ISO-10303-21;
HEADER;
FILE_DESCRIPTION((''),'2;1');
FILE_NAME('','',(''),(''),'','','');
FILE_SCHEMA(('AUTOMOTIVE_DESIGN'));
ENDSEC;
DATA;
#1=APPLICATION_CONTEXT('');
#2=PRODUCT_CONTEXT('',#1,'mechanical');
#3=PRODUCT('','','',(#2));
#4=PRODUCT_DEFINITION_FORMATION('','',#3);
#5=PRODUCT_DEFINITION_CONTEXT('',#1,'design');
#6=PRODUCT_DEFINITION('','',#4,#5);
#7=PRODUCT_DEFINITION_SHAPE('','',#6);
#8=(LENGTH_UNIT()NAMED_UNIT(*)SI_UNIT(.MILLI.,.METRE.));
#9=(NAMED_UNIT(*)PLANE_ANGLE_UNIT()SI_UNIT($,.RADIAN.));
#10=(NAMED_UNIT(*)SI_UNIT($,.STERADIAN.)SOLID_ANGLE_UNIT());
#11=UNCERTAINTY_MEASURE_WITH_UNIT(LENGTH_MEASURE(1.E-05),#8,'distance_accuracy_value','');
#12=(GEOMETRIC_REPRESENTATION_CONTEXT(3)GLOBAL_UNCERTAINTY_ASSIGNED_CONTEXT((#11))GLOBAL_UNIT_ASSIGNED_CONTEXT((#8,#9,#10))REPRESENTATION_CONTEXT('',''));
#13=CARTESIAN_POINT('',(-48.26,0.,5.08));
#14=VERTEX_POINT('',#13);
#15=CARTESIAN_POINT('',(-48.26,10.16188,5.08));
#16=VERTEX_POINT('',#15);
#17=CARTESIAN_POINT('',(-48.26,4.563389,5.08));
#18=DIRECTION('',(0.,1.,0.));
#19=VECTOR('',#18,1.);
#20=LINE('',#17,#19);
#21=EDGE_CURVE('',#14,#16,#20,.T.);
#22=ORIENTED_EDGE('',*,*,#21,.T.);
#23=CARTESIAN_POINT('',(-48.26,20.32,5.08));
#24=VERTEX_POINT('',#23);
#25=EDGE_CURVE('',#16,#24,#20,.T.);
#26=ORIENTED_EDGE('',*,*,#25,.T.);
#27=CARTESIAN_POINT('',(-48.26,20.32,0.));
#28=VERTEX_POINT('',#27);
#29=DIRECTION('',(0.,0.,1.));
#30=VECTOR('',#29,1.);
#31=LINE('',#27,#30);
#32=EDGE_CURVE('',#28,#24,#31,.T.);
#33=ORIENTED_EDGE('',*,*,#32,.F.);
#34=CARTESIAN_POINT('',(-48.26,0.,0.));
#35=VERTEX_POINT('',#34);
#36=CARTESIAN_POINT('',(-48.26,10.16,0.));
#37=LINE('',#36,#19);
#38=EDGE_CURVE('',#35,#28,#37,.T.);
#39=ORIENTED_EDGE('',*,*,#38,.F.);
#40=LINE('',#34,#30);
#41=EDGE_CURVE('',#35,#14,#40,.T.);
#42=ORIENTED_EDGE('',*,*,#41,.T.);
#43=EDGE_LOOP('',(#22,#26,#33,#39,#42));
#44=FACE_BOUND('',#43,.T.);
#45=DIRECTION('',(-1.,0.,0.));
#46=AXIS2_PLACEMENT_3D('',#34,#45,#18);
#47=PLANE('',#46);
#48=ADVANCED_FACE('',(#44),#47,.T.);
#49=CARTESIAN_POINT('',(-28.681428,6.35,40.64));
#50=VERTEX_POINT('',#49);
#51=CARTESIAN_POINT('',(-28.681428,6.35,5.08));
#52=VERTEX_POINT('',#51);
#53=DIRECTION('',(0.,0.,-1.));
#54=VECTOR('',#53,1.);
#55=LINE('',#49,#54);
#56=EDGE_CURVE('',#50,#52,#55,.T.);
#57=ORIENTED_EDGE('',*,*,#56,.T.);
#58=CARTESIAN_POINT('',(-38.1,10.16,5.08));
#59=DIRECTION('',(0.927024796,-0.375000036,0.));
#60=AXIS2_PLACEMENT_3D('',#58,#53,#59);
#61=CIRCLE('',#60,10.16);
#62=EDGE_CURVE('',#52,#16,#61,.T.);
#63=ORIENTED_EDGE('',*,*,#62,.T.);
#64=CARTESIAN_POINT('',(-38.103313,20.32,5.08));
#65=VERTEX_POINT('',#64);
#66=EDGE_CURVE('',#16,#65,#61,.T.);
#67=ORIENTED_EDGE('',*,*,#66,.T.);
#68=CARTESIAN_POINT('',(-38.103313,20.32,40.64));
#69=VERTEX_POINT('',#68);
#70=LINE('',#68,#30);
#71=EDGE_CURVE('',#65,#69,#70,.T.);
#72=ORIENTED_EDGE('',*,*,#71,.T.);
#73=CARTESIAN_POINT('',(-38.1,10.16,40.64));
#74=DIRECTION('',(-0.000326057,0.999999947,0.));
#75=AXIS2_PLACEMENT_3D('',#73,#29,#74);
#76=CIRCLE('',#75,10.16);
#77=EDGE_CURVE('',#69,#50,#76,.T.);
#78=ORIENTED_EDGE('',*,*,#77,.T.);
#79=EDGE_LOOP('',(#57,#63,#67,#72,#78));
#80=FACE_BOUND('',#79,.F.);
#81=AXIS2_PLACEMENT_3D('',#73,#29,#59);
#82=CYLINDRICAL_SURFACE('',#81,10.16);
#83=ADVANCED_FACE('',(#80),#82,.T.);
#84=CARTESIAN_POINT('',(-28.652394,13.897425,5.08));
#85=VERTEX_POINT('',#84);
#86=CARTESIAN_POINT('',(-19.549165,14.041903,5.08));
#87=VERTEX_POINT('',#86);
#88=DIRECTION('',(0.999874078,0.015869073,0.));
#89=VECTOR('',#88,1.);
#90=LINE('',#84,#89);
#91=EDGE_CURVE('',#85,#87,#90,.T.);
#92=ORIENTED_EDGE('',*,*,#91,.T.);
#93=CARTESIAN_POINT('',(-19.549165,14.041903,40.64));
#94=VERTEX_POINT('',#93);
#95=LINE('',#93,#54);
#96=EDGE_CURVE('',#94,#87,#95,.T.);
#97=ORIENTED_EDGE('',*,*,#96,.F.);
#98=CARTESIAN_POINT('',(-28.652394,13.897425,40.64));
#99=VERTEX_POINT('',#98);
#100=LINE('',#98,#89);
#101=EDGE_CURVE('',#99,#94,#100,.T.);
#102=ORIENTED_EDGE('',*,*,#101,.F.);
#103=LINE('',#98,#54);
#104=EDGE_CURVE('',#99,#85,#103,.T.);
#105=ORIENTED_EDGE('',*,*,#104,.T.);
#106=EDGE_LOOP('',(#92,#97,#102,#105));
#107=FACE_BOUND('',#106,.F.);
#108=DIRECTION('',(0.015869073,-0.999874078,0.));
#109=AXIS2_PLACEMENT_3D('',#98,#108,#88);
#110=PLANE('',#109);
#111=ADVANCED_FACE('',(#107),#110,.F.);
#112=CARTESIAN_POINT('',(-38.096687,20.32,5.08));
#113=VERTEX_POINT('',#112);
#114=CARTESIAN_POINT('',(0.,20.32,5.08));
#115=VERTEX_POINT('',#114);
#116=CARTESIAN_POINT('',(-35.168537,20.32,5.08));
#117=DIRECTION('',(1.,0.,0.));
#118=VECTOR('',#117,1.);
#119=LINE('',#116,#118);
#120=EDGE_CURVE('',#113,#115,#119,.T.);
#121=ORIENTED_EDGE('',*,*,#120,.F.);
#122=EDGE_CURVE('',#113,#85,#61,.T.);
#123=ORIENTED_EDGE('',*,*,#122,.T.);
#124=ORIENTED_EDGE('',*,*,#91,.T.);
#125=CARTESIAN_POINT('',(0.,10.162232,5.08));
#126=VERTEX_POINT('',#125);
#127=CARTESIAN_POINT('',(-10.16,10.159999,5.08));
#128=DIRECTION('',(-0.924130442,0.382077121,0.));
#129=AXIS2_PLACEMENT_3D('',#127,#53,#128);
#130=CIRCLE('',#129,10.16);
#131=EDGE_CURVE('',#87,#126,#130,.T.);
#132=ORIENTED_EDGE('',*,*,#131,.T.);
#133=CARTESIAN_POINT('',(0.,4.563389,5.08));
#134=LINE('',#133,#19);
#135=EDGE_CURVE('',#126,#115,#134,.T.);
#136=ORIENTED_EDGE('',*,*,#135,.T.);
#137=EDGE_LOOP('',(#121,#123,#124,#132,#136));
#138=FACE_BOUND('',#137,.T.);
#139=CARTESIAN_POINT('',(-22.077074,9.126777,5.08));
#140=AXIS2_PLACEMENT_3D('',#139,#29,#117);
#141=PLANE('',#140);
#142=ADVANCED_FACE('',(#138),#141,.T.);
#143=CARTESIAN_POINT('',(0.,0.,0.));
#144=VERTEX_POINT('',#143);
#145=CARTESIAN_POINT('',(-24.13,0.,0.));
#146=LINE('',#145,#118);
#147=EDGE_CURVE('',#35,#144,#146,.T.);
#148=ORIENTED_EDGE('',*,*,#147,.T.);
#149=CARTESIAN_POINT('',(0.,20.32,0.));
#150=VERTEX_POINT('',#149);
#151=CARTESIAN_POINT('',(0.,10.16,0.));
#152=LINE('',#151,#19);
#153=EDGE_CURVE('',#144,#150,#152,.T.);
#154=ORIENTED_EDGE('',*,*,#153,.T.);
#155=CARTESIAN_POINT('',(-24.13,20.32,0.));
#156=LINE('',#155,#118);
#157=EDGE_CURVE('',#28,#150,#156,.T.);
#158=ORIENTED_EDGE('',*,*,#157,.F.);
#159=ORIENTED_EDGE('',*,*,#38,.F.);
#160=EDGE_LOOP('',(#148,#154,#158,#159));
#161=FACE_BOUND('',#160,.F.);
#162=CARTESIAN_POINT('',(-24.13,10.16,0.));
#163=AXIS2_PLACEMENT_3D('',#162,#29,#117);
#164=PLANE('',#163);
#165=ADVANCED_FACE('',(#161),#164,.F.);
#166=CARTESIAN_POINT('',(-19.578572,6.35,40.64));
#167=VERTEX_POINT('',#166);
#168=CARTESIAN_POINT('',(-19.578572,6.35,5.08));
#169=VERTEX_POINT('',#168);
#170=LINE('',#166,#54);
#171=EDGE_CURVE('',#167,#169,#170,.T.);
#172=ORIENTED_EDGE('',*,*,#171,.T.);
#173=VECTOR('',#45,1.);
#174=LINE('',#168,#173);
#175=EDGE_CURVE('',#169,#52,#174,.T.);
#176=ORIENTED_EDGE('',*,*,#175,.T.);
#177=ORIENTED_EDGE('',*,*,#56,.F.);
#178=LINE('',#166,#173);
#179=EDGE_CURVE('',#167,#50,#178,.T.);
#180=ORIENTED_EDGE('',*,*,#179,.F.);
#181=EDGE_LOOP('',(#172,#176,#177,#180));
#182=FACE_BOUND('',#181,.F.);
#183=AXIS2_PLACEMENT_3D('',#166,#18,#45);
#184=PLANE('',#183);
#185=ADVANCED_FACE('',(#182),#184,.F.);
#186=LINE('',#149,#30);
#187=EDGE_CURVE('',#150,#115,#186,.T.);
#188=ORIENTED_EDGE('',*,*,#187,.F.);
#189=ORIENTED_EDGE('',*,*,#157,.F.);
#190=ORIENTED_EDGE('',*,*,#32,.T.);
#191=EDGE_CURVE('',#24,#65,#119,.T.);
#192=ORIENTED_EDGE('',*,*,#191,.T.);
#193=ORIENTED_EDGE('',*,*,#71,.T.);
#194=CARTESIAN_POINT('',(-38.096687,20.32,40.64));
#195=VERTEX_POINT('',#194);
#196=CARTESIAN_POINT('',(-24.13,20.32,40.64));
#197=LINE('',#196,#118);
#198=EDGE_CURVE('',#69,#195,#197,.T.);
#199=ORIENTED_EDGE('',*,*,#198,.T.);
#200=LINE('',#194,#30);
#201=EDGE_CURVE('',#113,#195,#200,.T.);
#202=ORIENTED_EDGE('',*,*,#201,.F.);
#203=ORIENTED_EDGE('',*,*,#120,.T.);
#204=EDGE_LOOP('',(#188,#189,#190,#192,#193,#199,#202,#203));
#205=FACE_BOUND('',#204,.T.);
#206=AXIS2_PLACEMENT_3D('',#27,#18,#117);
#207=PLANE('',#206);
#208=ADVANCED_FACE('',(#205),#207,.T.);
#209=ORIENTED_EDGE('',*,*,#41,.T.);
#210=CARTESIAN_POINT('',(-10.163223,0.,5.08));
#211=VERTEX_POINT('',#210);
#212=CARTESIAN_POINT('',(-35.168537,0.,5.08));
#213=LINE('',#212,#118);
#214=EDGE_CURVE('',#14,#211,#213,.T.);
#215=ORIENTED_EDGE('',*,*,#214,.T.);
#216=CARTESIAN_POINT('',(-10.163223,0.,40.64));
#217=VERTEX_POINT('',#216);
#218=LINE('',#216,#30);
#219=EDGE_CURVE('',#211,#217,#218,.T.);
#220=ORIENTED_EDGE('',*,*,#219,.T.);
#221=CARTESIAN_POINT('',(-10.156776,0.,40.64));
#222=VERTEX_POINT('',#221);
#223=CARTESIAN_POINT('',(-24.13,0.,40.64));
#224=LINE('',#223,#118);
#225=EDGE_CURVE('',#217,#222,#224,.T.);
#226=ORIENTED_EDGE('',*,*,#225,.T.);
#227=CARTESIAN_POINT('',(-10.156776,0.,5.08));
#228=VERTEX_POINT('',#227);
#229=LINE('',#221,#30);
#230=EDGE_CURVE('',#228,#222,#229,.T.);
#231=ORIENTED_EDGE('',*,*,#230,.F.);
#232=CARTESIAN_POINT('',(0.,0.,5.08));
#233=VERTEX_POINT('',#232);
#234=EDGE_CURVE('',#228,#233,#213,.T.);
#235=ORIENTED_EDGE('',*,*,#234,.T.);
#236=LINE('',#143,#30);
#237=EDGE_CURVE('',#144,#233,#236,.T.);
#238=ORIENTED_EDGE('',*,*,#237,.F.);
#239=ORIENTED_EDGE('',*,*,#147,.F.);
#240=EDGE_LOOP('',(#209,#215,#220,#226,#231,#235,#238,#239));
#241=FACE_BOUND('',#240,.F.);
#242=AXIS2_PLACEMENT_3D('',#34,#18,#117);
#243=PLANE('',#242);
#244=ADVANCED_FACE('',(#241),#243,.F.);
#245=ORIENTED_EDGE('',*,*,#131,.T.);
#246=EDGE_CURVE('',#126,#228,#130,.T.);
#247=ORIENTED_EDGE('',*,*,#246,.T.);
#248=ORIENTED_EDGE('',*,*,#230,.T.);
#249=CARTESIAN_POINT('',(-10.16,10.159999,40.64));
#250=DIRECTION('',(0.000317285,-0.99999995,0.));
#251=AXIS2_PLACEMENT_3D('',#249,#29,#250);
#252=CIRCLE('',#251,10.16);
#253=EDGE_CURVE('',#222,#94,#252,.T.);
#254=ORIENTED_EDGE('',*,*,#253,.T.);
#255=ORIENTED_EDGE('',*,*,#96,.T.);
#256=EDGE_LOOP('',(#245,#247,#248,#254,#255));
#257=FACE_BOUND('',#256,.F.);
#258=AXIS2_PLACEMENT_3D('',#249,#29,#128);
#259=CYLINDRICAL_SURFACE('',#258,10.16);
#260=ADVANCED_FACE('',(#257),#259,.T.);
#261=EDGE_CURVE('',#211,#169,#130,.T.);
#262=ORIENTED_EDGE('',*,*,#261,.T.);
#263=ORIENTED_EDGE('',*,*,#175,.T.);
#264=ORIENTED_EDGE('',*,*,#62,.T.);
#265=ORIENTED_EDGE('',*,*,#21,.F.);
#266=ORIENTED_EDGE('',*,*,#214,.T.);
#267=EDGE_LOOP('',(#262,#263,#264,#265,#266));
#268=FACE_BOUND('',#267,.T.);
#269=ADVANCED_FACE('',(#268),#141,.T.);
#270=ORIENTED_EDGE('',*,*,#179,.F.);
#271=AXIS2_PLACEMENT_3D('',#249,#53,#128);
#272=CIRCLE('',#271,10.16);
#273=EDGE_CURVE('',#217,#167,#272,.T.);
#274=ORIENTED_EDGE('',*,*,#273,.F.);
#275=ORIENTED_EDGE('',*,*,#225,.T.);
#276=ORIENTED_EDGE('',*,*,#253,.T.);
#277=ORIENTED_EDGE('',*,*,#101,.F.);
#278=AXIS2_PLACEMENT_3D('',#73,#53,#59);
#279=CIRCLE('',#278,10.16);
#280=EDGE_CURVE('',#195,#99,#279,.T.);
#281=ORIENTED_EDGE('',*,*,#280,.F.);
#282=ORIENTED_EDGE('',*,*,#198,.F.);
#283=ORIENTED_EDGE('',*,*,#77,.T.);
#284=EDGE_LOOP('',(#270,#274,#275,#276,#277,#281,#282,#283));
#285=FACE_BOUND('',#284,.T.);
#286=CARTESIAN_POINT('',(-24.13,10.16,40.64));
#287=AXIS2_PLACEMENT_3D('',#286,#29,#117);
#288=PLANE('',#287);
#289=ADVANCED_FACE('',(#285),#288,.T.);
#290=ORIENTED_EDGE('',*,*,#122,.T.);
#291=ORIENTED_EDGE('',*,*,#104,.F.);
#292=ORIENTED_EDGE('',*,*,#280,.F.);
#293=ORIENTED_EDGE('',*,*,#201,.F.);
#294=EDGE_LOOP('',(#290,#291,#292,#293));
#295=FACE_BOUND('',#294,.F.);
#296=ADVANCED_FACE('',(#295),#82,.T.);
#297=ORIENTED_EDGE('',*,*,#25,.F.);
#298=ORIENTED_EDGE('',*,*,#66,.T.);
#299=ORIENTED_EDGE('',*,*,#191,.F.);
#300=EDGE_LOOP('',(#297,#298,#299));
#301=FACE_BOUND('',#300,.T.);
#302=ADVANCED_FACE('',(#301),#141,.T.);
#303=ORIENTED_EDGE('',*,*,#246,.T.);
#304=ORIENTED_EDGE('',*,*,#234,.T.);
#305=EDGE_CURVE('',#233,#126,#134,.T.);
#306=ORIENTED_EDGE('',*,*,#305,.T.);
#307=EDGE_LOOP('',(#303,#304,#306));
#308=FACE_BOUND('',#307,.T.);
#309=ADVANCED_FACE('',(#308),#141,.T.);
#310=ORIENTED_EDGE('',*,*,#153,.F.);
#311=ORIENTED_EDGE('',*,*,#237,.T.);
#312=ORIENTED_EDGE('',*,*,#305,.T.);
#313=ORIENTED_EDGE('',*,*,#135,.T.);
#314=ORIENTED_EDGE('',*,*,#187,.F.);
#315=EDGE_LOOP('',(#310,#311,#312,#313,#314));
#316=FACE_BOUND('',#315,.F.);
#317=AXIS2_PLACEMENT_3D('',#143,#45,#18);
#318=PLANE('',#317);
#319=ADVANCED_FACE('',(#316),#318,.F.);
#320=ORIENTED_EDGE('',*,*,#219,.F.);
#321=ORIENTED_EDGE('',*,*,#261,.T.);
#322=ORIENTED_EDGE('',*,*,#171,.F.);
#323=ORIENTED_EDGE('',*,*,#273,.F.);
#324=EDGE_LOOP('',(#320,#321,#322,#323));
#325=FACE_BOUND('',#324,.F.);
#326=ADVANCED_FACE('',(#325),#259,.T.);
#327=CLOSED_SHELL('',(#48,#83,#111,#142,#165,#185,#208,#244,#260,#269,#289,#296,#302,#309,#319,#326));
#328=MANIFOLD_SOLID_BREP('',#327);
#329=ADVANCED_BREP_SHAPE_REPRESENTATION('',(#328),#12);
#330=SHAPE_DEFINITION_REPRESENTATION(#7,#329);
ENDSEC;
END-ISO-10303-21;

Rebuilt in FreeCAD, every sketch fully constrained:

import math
import FreeCAD as App
import Part
import Sketcher
Q = App.Units.Quantity


def add_polygon(sketch, points):
    """Adds a closed chain of lines whose ends are joined by coincident constraints."""
    first, n = sketch.GeometryCount, len(points)
    for a, b in zip(points, points[1:] + points[:1]):
        sketch.addGeometry(Part.LineSegment(App.Vector(*a, 0), App.Vector(*b, 0)), False)
    for i in range(n):
        sketch.addConstraint(Sketcher.Constraint("Coincident", first + i, 2, first + (i + 1) % n, 1))

doc = App.newDocument("Part")
params = doc.addObject("Spreadsheet::Sheet", "Params")
for row, (alias, value) in enumerate([
    ("sketch1_width", "1.9 in"),
    ("sketch1_height", "0.8 in"),
    ("pad1_length", "1.6 in"),
    ("sketch2_radius", "0.4 in"),
    ("pocket1_length", "1.4 in"),
], start=1):
    params.set(f"A{row}", alias)
    params.set(f"B{row}", "=" + value)
    params.setAlias(f"B{row}", alias)

body = doc.addObject("PartDesign::Body", "Body")

sketch1 = doc.addObject("Sketcher::SketchObject", "Sketch")
body.addObject(sketch1)
sketch1.AttachmentSupport = (doc.XY_Plane, [""])
sketch1.MapMode = "FlatFace"
add_polygon(sketch1, [(-48.26, 20.32), (-48.26, 0), (0, 0), (0, 20.32)])
sketch1.addConstraint([
    Sketcher.Constraint("Vertical", 0),
    Sketcher.Constraint("Horizontal", 1),
    Sketcher.Constraint("Vertical", 2),
    Sketcher.Constraint("Horizontal", 3),
    Sketcher.Constraint("Coincident", 1, 2, -1, 1),
    Sketcher.Constraint("DistanceX", 1, 1, 1, 2, Q("1.9 in")),
    Sketcher.Constraint("DistanceY", 0, 2, 0, 1, Q("0.8 in")),
])
sketch1.setExpression("Constraints[9]", "Params.sketch1_width")
sketch1.setExpression("Constraints[10]", "Params.sketch1_height")
pad1 = doc.addObject("PartDesign::Pad", "Pad")
body.addObject(pad1)
pad1.Profile = sketch1
pad1.setExpression("Length", "Params.pad1_length")

sketch2 = doc.addObject("Sketcher::SketchObject", "Sketch001")
body.addObject(sketch2)
sketch2.AttachmentSupport = (doc.XY_Plane, [""])
sketch2.MapMode = "FlatFace"
sketch2.AttachmentOffset = App.Placement(App.Vector(0, 0, 1.6 * 25.4), App.Rotation())
add_polygon(sketch2, [(-66.010796, 28.502548), (-66.010796, -10.248994), (21.856648, -10.248994), (21.856648, 28.502548)])
sketch2.addGeometry(Part.LineSegment(App.Vector(-19.578572, 6.35, 0), App.Vector(-28.681428, 6.35, 0)), False)
sketch2.addGeometry(Part.ArcOfCircle(Part.Circle(App.Vector(-38.1, 10.16, 0), App.Vector(0, 0, 1), 10.16), math.radians(21.583498), math.radians(337.975685)), False)
sketch2.addGeometry(Part.LineSegment(App.Vector(-28.652394, 13.897425, 0), App.Vector(-19.549165, 14.041903, 0)), False)
sketch2.addGeometry(Part.ArcOfCircle(Part.Circle(App.Vector(-10.16, 10.159999, 0), App.Vector(0, 0, 1), 10.16), math.radians(-157.97569), math.radians(157.537596)), False)
sketch2.addConstraint([
    Sketcher.Constraint("Coincident", 4, 2, 5, 2),
    Sketcher.Constraint("Coincident", 5, 1, 6, 1),
    Sketcher.Constraint("Coincident", 6, 2, 7, 2),
    Sketcher.Constraint("Coincident", 7, 1, 4, 1),
    Sketcher.Constraint("Vertical", 0),
    Sketcher.Constraint("Horizontal", 1),
    Sketcher.Constraint("Vertical", 2),
    Sketcher.Constraint("Horizontal", 3),
    Sketcher.Constraint("Horizontal", 4),
    Sketcher.Constraint("Equal", 5, 7),
    Sketcher.Constraint("Horizontal", 5, 3, 7, 3),
    Sketcher.Constraint("Radius", 5, Q("0.4 in")),
    Sketcher.Constraint("DistanceX", 5, 3, -1, 1, Q("1.5 in")),
    Sketcher.Constraint("DistanceY", -1, 1, 5, 3, Q("0.4 in")),
    Sketcher.Constraint("DistanceX", 7, 3, -1, 1, Q("0.4 in")),
    Sketcher.Constraint("DistanceY", -1, 1, 4, 2, Q("0.25 in")),
    Sketcher.Constraint("DistanceX", 1, 1, 1, 2, Q("87.867445 mm")),
    Sketcher.Constraint("DistanceY", 0, 2, 0, 1, Q("38.751542 mm")),
    Sketcher.Constraint("DistanceX", -1, 1, 1, 2, Q("21.856648 mm")),
    Sketcher.Constraint("DistanceY", -1, 1, 2, 2, Q("28.502548 mm")),
    Sketcher.Constraint("DistanceY", 0, 2, 5, 1, Q("24.146419 mm")),
    Sketcher.Constraint("DistanceX", 5, 1, 6, 2, Q("9.103229 mm")),
])
sketch2.setExpression("Constraints[15]", "Params.sketch2_radius")
pocket1 = doc.addObject("PartDesign::Pocket", "Pocket")
body.addObject(pocket1)
pocket1.Profile = sketch2
pocket1.setExpression("Length", "Params.pocket1_length")

doc.recompute()
